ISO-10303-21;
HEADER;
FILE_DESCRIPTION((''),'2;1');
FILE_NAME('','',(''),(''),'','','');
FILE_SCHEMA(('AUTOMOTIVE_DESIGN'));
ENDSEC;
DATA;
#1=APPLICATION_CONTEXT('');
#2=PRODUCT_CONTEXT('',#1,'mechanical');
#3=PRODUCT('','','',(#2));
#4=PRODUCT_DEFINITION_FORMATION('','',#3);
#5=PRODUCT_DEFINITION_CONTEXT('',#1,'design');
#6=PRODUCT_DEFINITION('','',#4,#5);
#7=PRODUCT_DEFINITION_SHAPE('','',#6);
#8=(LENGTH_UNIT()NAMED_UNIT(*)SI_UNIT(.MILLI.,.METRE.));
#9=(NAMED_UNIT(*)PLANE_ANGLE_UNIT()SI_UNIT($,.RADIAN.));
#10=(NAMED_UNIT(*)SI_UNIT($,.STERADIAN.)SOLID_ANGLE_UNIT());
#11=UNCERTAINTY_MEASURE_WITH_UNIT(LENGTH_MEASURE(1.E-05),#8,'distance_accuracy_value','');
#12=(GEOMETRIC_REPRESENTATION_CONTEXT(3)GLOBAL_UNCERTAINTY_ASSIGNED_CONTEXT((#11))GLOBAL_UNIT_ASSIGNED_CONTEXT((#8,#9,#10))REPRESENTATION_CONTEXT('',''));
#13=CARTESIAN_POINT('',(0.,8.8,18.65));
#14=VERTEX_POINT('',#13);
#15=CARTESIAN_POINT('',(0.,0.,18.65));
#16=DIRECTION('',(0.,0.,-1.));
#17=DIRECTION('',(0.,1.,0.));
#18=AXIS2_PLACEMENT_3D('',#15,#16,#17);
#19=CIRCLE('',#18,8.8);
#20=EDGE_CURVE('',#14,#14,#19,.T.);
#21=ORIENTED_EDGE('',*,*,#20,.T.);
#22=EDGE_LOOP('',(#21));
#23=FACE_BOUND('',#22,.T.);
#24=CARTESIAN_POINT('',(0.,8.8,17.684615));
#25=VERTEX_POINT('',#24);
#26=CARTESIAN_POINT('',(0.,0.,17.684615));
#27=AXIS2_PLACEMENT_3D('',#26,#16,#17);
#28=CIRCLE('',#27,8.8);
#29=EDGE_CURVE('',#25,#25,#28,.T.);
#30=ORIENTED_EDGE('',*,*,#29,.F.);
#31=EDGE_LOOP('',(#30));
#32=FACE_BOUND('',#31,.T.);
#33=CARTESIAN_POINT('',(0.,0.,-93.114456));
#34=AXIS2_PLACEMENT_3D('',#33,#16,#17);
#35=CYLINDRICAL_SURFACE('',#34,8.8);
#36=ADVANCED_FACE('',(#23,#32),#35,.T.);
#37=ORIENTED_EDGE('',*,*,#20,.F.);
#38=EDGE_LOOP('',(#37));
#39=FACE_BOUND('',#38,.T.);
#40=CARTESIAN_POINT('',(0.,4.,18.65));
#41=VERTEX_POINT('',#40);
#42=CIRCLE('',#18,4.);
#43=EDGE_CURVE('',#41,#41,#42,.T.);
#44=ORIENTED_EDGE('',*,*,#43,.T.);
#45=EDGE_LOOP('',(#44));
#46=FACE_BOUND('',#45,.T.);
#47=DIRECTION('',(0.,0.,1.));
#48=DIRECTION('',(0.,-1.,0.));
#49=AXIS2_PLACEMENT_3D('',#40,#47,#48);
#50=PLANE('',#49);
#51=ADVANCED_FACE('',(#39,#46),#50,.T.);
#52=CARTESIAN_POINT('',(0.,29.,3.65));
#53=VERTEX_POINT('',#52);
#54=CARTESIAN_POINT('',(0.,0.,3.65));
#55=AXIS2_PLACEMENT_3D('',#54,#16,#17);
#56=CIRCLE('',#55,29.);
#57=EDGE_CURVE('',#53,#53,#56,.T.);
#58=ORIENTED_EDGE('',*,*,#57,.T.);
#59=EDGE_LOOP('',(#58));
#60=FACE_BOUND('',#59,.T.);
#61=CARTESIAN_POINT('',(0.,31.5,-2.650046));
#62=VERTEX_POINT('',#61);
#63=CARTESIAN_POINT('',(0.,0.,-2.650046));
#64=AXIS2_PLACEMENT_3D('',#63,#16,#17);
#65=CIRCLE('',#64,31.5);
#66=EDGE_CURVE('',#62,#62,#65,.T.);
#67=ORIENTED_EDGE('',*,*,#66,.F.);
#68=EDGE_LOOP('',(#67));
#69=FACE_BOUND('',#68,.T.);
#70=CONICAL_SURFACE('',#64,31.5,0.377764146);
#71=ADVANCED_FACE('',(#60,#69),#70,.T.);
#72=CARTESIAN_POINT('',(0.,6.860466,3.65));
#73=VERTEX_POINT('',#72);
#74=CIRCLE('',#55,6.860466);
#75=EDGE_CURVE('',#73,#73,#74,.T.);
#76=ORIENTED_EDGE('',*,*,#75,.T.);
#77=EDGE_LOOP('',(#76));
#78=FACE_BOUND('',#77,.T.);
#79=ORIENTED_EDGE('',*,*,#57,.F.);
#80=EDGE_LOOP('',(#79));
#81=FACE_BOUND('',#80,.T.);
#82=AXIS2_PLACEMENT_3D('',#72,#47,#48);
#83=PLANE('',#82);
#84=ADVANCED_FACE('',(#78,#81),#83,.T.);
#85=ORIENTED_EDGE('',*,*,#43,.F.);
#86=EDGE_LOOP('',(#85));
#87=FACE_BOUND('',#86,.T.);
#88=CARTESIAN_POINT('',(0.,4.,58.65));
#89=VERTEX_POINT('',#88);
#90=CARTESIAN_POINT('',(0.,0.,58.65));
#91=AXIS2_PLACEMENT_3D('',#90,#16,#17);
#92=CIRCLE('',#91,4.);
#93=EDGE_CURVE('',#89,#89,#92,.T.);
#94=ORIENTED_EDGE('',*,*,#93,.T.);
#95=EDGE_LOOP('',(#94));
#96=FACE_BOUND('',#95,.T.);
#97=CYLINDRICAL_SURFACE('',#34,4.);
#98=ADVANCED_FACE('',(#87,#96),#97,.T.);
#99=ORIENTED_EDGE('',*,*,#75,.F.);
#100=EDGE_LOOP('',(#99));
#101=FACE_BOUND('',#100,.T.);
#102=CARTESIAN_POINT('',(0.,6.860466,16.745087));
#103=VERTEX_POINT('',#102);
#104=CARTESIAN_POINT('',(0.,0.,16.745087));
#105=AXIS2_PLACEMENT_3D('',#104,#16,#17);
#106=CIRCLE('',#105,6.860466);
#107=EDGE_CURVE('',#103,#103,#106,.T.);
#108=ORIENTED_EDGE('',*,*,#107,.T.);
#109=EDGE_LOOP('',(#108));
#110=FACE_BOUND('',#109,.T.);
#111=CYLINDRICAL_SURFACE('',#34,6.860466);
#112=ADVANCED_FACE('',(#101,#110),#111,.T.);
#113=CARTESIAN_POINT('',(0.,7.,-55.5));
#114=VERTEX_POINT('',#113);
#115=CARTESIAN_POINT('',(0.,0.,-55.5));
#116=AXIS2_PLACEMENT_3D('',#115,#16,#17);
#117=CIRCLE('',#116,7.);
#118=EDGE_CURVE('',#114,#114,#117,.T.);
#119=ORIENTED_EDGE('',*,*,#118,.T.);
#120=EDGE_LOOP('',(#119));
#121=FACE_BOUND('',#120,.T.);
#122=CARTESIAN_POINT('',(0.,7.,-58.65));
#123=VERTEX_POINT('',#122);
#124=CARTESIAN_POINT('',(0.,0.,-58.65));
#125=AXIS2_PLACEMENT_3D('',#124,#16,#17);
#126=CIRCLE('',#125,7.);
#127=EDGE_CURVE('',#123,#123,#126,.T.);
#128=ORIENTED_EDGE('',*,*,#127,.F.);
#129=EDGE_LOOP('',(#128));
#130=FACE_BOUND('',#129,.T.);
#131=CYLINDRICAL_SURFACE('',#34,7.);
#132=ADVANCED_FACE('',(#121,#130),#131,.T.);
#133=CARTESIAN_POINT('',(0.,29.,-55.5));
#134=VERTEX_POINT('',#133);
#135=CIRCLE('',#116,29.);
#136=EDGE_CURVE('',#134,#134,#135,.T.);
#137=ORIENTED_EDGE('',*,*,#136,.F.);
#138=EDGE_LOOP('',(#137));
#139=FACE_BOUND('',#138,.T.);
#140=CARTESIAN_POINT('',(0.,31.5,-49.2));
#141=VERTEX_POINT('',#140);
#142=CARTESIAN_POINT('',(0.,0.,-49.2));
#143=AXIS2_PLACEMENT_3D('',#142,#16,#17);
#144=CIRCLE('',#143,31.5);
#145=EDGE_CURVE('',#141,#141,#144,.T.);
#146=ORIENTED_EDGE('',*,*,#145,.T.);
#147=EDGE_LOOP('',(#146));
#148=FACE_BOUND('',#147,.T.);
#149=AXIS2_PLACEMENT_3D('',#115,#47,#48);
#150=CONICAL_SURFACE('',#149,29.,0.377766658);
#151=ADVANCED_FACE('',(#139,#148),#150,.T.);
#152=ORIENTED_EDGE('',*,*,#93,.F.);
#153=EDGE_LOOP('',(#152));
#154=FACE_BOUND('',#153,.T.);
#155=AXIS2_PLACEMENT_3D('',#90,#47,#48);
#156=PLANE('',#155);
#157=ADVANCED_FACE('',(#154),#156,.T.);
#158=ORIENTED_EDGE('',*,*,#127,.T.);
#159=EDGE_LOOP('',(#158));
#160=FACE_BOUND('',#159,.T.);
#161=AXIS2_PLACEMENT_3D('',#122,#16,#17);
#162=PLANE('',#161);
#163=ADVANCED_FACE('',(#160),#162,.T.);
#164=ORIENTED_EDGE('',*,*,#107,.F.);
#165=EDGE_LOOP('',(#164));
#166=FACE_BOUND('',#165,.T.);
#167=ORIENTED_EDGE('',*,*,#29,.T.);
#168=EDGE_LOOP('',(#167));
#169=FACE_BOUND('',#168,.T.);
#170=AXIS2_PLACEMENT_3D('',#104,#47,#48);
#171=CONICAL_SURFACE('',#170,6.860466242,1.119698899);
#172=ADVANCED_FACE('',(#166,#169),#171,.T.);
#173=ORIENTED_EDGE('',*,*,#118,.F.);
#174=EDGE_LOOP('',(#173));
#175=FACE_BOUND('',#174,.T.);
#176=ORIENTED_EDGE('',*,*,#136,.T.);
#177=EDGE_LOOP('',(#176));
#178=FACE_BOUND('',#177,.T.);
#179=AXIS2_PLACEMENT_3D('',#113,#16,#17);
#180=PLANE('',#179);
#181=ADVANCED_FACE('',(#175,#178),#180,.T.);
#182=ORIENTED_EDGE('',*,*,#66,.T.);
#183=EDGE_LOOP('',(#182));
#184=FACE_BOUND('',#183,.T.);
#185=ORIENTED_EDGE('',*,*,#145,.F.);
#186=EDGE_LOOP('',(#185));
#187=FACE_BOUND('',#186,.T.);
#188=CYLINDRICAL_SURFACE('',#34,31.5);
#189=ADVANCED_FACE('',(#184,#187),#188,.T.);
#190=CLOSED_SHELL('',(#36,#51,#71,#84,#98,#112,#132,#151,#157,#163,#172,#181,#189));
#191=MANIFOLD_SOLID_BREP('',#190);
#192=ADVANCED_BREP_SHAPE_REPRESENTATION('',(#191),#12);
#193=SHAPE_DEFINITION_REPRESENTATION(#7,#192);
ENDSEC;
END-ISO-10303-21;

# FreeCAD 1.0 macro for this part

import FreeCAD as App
import Part
import Sketcher

V = App.Vector

doc = App.newDocument("Part")
body = doc.addObject("PartDesign::Body", "Body")

# Sketch on YZ plane
sketch1 = doc.addObject("Sketcher::SketchObject", "Sketch")
body.addObject(sketch1)
sketch1.AttachmentSupport = (doc.YZ_Plane, [""])
sketch1.MapMode = "FlatFace"
sketch1.addGeometry(Part.LineSegment(V(0, 58.6, 0), V(0, -58.6, 0)), False)
sketch1.addGeometry(Part.LineSegment(V(0, -58.6, 0), V(7, -58.6, 0)), False)
sketch1.addGeometry(Part.LineSegment(V(7, -58.6, 0), V(7, -55.5, 0)), False)
sketch1.addGeometry(Part.LineSegment(V(7, -55.5, 0), V(29, -55.5, 0)), False)
sketch1.addGeometry(Part.LineSegment(V(29, -55.5, 0), V(31.5, -49.2, 0)), False)
sketch1.addGeometry(Part.LineSegment(V(31.5, -49.2, 0), V(31.5, -2.7, 0)), False)
sketch1.addGeometry(Part.LineSegment(V(31.5, -2.7, 0), V(29, 3.6, 0)), False)
sketch1.addGeometry(Part.LineSegment(V(29, 3.6, 0), V(6.9, 3.6, 0)), False)
sketch1.addGeometry(Part.LineSegment(V(6.9, 3.6, 0), V(6.9, 16.7, 0)), False)
sketch1.addGeometry(Part.LineSegment(V(6.9, 16.7, 0), V(8.8, 17.7, 0)), False)
sketch1.addGeometry(Part.LineSegment(V(8.8, 17.7, 0), V(8.8, 18.6, 0)), False)
sketch1.addGeometry(Part.LineSegment(V(8.8, 18.6, 0), V(4, 18.6, 0)), False)
sketch1.addGeometry(Part.LineSegment(V(4, 18.6, 0), V(4, 58.6, 0)), False)
sketch1.addGeometry(Part.LineSegment(V(4, 58.6, 0), V(0, 58.6, 0)), False)
sketch1.addConstraint(Sketcher.Constraint("Coincident", 0, 2, 1, 1))
sketch1.addConstraint(Sketcher.Constraint("Coincident", 1, 2, 2, 1))
sketch1.addConstraint(Sketcher.Constraint("Coincident", 2, 2, 3, 1))
sketch1.addConstraint(Sketcher.Constraint("Coincident", 3, 2, 4, 1))
sketch1.addConstraint(Sketcher.Constraint("Coincident", 4, 2, 5, 1))
sketch1.addConstraint(Sketcher.Constraint("Coincident", 5, 2, 6, 1))
sketch1.addConstraint(Sketcher.Constraint("Coincident", 6, 2, 7, 1))
sketch1.addConstraint(Sketcher.Constraint("Coincident", 7, 2, 8, 1))
sketch1.addConstraint(Sketcher.Constraint("Coincident", 8, 2, 9, 1))
sketch1.addConstraint(Sketcher.Constraint("Coincident", 9, 2, 10, 1))
sketch1.addConstraint(Sketcher.Constraint("Coincident", 10, 2, 11, 1))
sketch1.addConstraint(Sketcher.Constraint("Coincident", 11, 2, 12, 1))
sketch1.addConstraint(Sketcher.Constraint("Coincident", 12, 2, 13, 1))
sketch1.addConstraint(Sketcher.Constraint("Coincident", 13, 2, 0, 1))
sketch1.addConstraint(Sketcher.Constraint("Vertical", 0))
sketch1.addConstraint(Sketcher.Constraint("Horizontal", 1))
sketch1.addConstraint(Sketcher.Constraint("Vertical", 2))
sketch1.addConstraint(Sketcher.Constraint("Horizontal", 3))
sketch1.addConstraint(Sketcher.Constraint("Vertical", 5))
sketch1.addConstraint(Sketcher.Constraint("Horizontal", 7))
sketch1.addConstraint(Sketcher.Constraint("Vertical", 8))
sketch1.addConstraint(Sketcher.Constraint("Vertical", 10))
sketch1.addConstraint(Sketcher.Constraint("Horizontal", 11))
sketch1.addConstraint(Sketcher.Constraint("Vertical", 12))
sketch1.addConstraint(Sketcher.Constraint("Horizontal", 13))
sketch1.addConstraint(Sketcher.Constraint("Symmetric", 0, 2, 13, 2, -1, 1))
sketch1.addConstraint(Sketcher.Constraint("Vertical", 3, 2, 6, 2))
sketch1.addConstraint(Sketcher.Constraint("DistanceX", 1, 1, 1, 2, 7.0))
sketch1.addConstraint(Sketcher.Constraint("DistanceX", 3, 1, 3, 2, 22.0))
sketch1.addConstraint(Sketcher.Constraint("DistanceX", 13, 2, 13, 1, 4.0))
sketch1.addConstraint(Sketcher.Constraint("DistanceY", 12, 1, 12, 2, 40.0))
sketch1.addConstraint(Sketcher.Constraint("DistanceX", 11, 2, 11, 1, 4.8))
sketch1.addConstraint(Sketcher.Constraint("DistanceY", 0, 2, 0, 1, 117.3))
sketch1.addConstraint(Sketcher.Constraint("DistanceY", 7, 2, 10, 2, 15.0))
sketch1.addConstraint(Sketcher.Constraint("DistanceY", 2, 1, 2, 2, 3.15))
sketch1.addConstraint(Sketcher.Constraint("DistanceX", -1, 1, 4, 2, 31.5))
sketch1.addConstraint(Sketcher.Constraint("DistanceY", 4, 2, -1, 1, 49.2))
sketch1.addConstraint(Sketcher.Constraint("Distance", 6, 6.777948))
sketch1.addConstraint(Sketcher.Constraint("Distance", 9, 2.155111))
sketch1.addConstraint(Sketcher.Constraint("DistanceX", 7, 2, 7, 1, 22.139534))
sketch1.addConstraint(Sketcher.Constraint("DistanceY", 8, 1, 8, 2, 13.095087))
revolution = doc.addObject("PartDesign::Revolution", "Revolution")
body.addObject(revolution)
revolution.Profile = sketch1
revolution.ReferenceAxis = (sketch1, ["V_Axis"])
revolution.Angle = 360

doc.recompute()
